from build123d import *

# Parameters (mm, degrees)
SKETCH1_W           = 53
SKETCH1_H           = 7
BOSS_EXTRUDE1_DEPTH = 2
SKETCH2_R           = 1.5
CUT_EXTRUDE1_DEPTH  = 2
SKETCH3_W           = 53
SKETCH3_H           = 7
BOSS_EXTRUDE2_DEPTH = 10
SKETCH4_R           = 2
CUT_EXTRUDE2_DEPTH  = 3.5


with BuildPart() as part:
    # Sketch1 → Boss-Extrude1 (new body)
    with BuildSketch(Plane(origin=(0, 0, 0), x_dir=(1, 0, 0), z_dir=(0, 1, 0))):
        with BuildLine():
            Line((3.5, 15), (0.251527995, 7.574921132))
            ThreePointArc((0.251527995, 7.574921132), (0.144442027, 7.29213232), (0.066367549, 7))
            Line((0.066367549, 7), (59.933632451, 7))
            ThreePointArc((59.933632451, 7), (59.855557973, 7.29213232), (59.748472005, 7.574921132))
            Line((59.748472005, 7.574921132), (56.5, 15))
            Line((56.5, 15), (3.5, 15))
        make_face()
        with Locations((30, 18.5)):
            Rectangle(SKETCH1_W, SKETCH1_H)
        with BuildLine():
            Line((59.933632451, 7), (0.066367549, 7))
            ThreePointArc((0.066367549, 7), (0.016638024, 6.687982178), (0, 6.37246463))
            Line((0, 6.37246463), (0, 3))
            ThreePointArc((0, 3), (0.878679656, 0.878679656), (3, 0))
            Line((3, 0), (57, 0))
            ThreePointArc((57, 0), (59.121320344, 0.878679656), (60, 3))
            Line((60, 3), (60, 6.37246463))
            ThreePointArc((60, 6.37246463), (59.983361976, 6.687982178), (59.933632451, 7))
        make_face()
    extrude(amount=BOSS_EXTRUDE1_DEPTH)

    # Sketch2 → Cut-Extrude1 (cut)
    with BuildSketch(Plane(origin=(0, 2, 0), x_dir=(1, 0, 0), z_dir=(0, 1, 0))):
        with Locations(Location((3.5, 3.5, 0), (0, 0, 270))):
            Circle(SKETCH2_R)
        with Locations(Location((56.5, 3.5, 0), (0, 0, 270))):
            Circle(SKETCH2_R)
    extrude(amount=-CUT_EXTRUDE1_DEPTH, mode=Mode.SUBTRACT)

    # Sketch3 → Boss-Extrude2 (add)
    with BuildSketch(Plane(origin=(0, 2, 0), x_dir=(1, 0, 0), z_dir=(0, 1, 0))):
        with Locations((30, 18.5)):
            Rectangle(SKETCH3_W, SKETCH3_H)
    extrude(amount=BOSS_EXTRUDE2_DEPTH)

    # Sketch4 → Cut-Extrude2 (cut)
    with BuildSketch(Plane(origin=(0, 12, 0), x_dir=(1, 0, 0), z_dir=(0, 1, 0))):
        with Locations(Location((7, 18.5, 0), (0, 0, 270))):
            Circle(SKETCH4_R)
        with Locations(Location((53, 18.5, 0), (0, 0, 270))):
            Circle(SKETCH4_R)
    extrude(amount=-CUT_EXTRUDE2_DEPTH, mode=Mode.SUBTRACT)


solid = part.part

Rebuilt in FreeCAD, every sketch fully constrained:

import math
import FreeCAD as App
import Part
import Sketcher


def add_polygon(sketch, points):
    """Adds a closed chain of lines whose ends are joined by coincident constraints."""
    first, n = sketch.GeometryCount, len(points)
    for a, b in zip(points, points[1:] + points[:1]):
        sketch.addGeometry(Part.LineSegment(App.Vector(*a, 0), App.Vector(*b, 0)), False)
    for i in range(n):
        sketch.addConstraint(Sketcher.Constraint("Coincident", first + i, 2, first + (i + 1) % n, 1))

doc = App.newDocument("Part")
params = doc.addObject("Spreadsheet::Sheet", "Params")
for row, (alias, value) in enumerate([
    ("sketch1_radius", "3 mm"),
    ("sketch1_width", "54 mm"),
    ("sketch1_width2", "53 mm"),
    ("sketch1_height", "7 mm"),
    ("pad1_length", "2 mm"),
    ("sketch2_diameter", "3 mm"),
    ("pocket1_length", "2 mm"),
    ("sketch3_width", "53 mm"),
    ("sketch3_height", "7 mm"),
    ("pad2_length", "10 mm"),
    ("sketch4_diameter", "4 mm"),
    ("pocket2_length", "3.5 mm"),
], start=1):
    params.set(f"A{row}", alias)
    params.set(f"B{row}", "=" + value)
    params.setAlias(f"B{row}", alias)

body = doc.addObject("PartDesign::Body", "Body")

sketch1 = body.newObject("Sketcher::SketchObject", "Sketch")
sketch1.AttachmentSupport = (doc.getObject("XZ_Plane"), [""])
sketch1.MapMode = "FlatFace"
sketch1.addGeometry([
    Part.LineSegment(App.Vector(3.5, -15, 0), App.Vector(0.3, -7.6, 0)),
    Part.ArcOfCircle(Part.Circle(App.Vector(3, -6.4, 0), App.Vector(0, 0, 1), 3), math.radians(-167.93), math.radians(-156.37)),
    Part.ArcOfCircle(Part.Circle(App.Vector(3, -6.4, 0), App.Vector(0, 0, 1), 3), math.radians(180), math.radians(192.07)),
    Part.LineSegment(App.Vector(0, -6.4, 0), App.Vector(0, -3, 0)),
    Part.ArcOfCircle(Part.Circle(App.Vector(3, -3, 0), App.Vector(0, 0, 1), 3), math.radians(90), math.radians(180)),
    Part.LineSegment(App.Vector(3, 0, 0), App.Vector(57, 0, 0)),
    Part.ArcOfCircle(Part.Circle(App.Vector(57, -3, 0), App.Vector(0, 0, 1), 3), math.radians(0), math.radians(90)),
    Part.LineSegment(App.Vector(60, -3, 0), App.Vector(60, -6.4, 0)),
    Part.ArcOfCircle(Part.Circle(App.Vector(57, -6.4, 0), App.Vector(0, 0, 1), 3), math.radians(-12.07), math.radians(0)),
    Part.ArcOfCircle(Part.Circle(App.Vector(57, -6.4, 0), App.Vector(0, 0, 1), 3), math.radians(-23.63), math.radians(-12.07)),
    Part.LineSegment(App.Vector(59.7, -7.6, 0), App.Vector(56.5, -15, 0)),
    Part.LineSegment(App.Vector(56.5, -15, 0), App.Vector(56.5, -22, 0)),
    Part.LineSegment(App.Vector(56.5, -22, 0), App.Vector(3.5, -22, 0)),
    Part.LineSegment(App.Vector(3.5, -22, 0), App.Vector(3.5, -15, 0)),
], False)
sketch1.addConstraint([
    Sketcher.Constraint("Tangent", 0, 2, 1, 2),
    Sketcher.Constraint("Tangent", 1, 1, 2, 2),
    Sketcher.Constraint("Tangent", 2, 1, 3, 1),
    Sketcher.Constraint("Tangent", 3, 2, 4, 2),
    Sketcher.Constraint("Tangent", 4, 1, 5, 1),
    Sketcher.Constraint("Tangent", 5, 2, 6, 2),
    Sketcher.Constraint("Tangent", 6, 1, 7, 1),
    Sketcher.Constraint("Tangent", 7, 2, 8, 2),
    Sketcher.Constraint("Tangent", 8, 1, 9, 2),
    Sketcher.Constraint("Tangent", 9, 1, 10, 1),
    Sketcher.Constraint("Coincident", 10, 2, 11, 1),
    Sketcher.Constraint("Coincident", 11, 2, 12, 1),
    Sketcher.Constraint("Coincident", 12, 2, 13, 1),
    Sketcher.Constraint("Coincident", 13, 2, 0, 1),
    Sketcher.Constraint("Vertical", 3),
    Sketcher.Constraint("Horizontal", 5),
    Sketcher.Constraint("Vertical", 7),
    Sketcher.Constraint("Vertical", 11),
    Sketcher.Constraint("Horizontal", 12),
    Sketcher.Constraint("Vertical", 13),
    Sketcher.Constraint("Equal", 1, 2),
    Sketcher.Constraint("Equal", 2, 4),
    Sketcher.Constraint("Equal", 4, 6),
    Sketcher.Constraint("Equal", 6, 8),
    Sketcher.Constraint("Equal", 8, 9),
    Sketcher.Constraint("PointOnObject", 2, 1, -2),
    Sketcher.Constraint("PointOnObject", 4, 1, -1),
    Sketcher.Constraint("Horizontal", 2, 3, 8, 3),
    Sketcher.Constraint("Horizontal", 1, 1, 8, 1),
    Sketcher.Constraint("Horizontal", 0, 2, 9, 1),
    Sketcher.Constraint("Horizontal", 10, 2, 13, 2),
    Sketcher.Constraint("Radius", 1, 3.0),
    Sketcher.Constraint("DistanceX", 5, 1, 5, 2, 54.0),
    Sketcher.Constraint("DistanceX", 12, 2, 12, 1, 53.0),
    Sketcher.Constraint("DistanceY", 11, 2, 11, 1, 7.0),
    Sketcher.Constraint("DistanceY", 1, 1, -1, 1, 7.0),
    Sketcher.Constraint("DistanceY", 10, 2, -1, 1, 15.0),
    Sketcher.Constraint("Distance", 0, 8.104589),
])
sketch1.setExpression("Constraints[31]", "Params.sketch1_radius")
sketch1.setExpression("Constraints[32]", "Params.sketch1_width")
sketch1.setExpression("Constraints[33]", "Params.sketch1_width2")
sketch1.setExpression("Constraints[34]", "Params.sketch1_height")
pad1 = body.newObject("PartDesign::Pad", "Pad")
pad1.Profile = sketch1
pad1.setExpression("Length", "Params.pad1_length")
pad1.Reversed = True

sketch2 = body.newObject("Sketcher::SketchObject", "Sketch001")
sketch2.AttachmentSupport = (doc.getObject("XZ_Plane"), [""])
sketch2.MapMode = "FlatFace"
sketch2.AttachmentOffset = App.Placement(App.Vector(0, 0, -2), App.Rotation())
sketch2.addGeometry([
    Part.Circle(App.Vector(3.5, -3.5, 0), App.Vector(0, 0, 1), 1.5),
    Part.Circle(App.Vector(56.5, -3.5, 0), App.Vector(0, 0, 1), 1.5),
], False)
sketch2.addConstraint([
    Sketcher.Constraint("Equal", 0, 1),
    Sketcher.Constraint("Horizontal", 0, 3, 1, 3),
    Sketcher.Constraint("Diameter", 0, 3.0),
    Sketcher.Constraint("DistanceX", 0, 3, 1, 3, 53.0),
    Sketcher.Constraint("DistanceX", -1, 1, 0, 3, 3.5),
    Sketcher.Constraint("DistanceY", 0, 3, -1, 1, 3.5),
])
sketch2.setExpression("Constraints[2]", "Params.sketch2_diameter")
pocket1 = body.newObject("PartDesign::Pocket", "Pocket")
pocket1.Profile = sketch2
pocket1.setExpression("Length", "Params.pocket1_length")
pocket1.Reversed = True

sketch3 = body.newObject("Sketcher::SketchObject", "Sketch002")
sketch3.AttachmentSupport = (doc.getObject("XZ_Plane"), [""])
sketch3.MapMode = "FlatFace"
sketch3.AttachmentOffset = App.Placement(App.Vector(0, 0, -2), App.Rotation())
add_polygon(sketch3, [(4, -22), (4, -15), (56, -15), (56, -22)])
sketch3.addConstraint([
    Sketcher.Constraint("Vertical", 0),
    Sketcher.Constraint("Horizontal", 1),
    Sketcher.Constraint("Vertical", 2),
    Sketcher.Constraint("Horizontal", 3),
    Sketcher.Constraint("DistanceX", 1, 1, 1, 2, 53.0),
    Sketcher.Constraint("DistanceY", 0, 1, 0, 2, 7.0),
    Sketcher.Constraint("DistanceY", 0, 2, -1, 1, 15.0),
    Sketcher.Constraint("DistanceX", -1, 1, 0, 2, 3.5),
])
sketch3.setExpression("Constraints[8]", "Params.sketch3_width")
sketch3.setExpression("Constraints[9]", "Params.sketch3_height")
pad2 = body.newObject("PartDesign::Pad", "Pad001")
pad2.Profile = sketch3
pad2.setExpression("Length", "Params.pad2_length")
pad2.Reversed = True

sketch4 = body.newObject("Sketcher::SketchObject", "Sketch003")
sketch4.AttachmentSupport = (doc.getObject("XZ_Plane"), [""])
sketch4.MapMode = "FlatFace"
sketch4.AttachmentOffset = App.Placement(App.Vector(0, 0, -12), App.Rotation())
sketch4.addGeometry([
    Part.Circle(App.Vector(7, -18.5, 0), App.Vector(0, 0, 1), 2),
    Part.Circle(App.Vector(53, -18.5, 0), App.Vector(0, 0, 1), 2),
], False)
sketch4.addConstraint([
    Sketcher.Constraint("Equal", 0, 1),
    Sketcher.Constraint("Horizontal", 0, 3, 1, 3),
    Sketcher.Constraint("Diameter", 0, 4.0),
    Sketcher.Constraint("DistanceX", -1, 1, 0, 3, 7.0),
    Sketcher.Constraint("DistanceX", -1, 1, 1, 3, 53.0),
    Sketcher.Constraint("DistanceY", 0, 3, -1, 1, 18.5),
])
sketch4.setExpression("Constraints[2]", "Params.sketch4_diameter")
pocket2 = body.newObject("PartDesign::Pocket", "Pocket001")
pocket2.Profile = sketch4
pocket2.setExpression("Length", "Params.pocket2_length")
pocket2.Reversed = True

doc.recompute()
